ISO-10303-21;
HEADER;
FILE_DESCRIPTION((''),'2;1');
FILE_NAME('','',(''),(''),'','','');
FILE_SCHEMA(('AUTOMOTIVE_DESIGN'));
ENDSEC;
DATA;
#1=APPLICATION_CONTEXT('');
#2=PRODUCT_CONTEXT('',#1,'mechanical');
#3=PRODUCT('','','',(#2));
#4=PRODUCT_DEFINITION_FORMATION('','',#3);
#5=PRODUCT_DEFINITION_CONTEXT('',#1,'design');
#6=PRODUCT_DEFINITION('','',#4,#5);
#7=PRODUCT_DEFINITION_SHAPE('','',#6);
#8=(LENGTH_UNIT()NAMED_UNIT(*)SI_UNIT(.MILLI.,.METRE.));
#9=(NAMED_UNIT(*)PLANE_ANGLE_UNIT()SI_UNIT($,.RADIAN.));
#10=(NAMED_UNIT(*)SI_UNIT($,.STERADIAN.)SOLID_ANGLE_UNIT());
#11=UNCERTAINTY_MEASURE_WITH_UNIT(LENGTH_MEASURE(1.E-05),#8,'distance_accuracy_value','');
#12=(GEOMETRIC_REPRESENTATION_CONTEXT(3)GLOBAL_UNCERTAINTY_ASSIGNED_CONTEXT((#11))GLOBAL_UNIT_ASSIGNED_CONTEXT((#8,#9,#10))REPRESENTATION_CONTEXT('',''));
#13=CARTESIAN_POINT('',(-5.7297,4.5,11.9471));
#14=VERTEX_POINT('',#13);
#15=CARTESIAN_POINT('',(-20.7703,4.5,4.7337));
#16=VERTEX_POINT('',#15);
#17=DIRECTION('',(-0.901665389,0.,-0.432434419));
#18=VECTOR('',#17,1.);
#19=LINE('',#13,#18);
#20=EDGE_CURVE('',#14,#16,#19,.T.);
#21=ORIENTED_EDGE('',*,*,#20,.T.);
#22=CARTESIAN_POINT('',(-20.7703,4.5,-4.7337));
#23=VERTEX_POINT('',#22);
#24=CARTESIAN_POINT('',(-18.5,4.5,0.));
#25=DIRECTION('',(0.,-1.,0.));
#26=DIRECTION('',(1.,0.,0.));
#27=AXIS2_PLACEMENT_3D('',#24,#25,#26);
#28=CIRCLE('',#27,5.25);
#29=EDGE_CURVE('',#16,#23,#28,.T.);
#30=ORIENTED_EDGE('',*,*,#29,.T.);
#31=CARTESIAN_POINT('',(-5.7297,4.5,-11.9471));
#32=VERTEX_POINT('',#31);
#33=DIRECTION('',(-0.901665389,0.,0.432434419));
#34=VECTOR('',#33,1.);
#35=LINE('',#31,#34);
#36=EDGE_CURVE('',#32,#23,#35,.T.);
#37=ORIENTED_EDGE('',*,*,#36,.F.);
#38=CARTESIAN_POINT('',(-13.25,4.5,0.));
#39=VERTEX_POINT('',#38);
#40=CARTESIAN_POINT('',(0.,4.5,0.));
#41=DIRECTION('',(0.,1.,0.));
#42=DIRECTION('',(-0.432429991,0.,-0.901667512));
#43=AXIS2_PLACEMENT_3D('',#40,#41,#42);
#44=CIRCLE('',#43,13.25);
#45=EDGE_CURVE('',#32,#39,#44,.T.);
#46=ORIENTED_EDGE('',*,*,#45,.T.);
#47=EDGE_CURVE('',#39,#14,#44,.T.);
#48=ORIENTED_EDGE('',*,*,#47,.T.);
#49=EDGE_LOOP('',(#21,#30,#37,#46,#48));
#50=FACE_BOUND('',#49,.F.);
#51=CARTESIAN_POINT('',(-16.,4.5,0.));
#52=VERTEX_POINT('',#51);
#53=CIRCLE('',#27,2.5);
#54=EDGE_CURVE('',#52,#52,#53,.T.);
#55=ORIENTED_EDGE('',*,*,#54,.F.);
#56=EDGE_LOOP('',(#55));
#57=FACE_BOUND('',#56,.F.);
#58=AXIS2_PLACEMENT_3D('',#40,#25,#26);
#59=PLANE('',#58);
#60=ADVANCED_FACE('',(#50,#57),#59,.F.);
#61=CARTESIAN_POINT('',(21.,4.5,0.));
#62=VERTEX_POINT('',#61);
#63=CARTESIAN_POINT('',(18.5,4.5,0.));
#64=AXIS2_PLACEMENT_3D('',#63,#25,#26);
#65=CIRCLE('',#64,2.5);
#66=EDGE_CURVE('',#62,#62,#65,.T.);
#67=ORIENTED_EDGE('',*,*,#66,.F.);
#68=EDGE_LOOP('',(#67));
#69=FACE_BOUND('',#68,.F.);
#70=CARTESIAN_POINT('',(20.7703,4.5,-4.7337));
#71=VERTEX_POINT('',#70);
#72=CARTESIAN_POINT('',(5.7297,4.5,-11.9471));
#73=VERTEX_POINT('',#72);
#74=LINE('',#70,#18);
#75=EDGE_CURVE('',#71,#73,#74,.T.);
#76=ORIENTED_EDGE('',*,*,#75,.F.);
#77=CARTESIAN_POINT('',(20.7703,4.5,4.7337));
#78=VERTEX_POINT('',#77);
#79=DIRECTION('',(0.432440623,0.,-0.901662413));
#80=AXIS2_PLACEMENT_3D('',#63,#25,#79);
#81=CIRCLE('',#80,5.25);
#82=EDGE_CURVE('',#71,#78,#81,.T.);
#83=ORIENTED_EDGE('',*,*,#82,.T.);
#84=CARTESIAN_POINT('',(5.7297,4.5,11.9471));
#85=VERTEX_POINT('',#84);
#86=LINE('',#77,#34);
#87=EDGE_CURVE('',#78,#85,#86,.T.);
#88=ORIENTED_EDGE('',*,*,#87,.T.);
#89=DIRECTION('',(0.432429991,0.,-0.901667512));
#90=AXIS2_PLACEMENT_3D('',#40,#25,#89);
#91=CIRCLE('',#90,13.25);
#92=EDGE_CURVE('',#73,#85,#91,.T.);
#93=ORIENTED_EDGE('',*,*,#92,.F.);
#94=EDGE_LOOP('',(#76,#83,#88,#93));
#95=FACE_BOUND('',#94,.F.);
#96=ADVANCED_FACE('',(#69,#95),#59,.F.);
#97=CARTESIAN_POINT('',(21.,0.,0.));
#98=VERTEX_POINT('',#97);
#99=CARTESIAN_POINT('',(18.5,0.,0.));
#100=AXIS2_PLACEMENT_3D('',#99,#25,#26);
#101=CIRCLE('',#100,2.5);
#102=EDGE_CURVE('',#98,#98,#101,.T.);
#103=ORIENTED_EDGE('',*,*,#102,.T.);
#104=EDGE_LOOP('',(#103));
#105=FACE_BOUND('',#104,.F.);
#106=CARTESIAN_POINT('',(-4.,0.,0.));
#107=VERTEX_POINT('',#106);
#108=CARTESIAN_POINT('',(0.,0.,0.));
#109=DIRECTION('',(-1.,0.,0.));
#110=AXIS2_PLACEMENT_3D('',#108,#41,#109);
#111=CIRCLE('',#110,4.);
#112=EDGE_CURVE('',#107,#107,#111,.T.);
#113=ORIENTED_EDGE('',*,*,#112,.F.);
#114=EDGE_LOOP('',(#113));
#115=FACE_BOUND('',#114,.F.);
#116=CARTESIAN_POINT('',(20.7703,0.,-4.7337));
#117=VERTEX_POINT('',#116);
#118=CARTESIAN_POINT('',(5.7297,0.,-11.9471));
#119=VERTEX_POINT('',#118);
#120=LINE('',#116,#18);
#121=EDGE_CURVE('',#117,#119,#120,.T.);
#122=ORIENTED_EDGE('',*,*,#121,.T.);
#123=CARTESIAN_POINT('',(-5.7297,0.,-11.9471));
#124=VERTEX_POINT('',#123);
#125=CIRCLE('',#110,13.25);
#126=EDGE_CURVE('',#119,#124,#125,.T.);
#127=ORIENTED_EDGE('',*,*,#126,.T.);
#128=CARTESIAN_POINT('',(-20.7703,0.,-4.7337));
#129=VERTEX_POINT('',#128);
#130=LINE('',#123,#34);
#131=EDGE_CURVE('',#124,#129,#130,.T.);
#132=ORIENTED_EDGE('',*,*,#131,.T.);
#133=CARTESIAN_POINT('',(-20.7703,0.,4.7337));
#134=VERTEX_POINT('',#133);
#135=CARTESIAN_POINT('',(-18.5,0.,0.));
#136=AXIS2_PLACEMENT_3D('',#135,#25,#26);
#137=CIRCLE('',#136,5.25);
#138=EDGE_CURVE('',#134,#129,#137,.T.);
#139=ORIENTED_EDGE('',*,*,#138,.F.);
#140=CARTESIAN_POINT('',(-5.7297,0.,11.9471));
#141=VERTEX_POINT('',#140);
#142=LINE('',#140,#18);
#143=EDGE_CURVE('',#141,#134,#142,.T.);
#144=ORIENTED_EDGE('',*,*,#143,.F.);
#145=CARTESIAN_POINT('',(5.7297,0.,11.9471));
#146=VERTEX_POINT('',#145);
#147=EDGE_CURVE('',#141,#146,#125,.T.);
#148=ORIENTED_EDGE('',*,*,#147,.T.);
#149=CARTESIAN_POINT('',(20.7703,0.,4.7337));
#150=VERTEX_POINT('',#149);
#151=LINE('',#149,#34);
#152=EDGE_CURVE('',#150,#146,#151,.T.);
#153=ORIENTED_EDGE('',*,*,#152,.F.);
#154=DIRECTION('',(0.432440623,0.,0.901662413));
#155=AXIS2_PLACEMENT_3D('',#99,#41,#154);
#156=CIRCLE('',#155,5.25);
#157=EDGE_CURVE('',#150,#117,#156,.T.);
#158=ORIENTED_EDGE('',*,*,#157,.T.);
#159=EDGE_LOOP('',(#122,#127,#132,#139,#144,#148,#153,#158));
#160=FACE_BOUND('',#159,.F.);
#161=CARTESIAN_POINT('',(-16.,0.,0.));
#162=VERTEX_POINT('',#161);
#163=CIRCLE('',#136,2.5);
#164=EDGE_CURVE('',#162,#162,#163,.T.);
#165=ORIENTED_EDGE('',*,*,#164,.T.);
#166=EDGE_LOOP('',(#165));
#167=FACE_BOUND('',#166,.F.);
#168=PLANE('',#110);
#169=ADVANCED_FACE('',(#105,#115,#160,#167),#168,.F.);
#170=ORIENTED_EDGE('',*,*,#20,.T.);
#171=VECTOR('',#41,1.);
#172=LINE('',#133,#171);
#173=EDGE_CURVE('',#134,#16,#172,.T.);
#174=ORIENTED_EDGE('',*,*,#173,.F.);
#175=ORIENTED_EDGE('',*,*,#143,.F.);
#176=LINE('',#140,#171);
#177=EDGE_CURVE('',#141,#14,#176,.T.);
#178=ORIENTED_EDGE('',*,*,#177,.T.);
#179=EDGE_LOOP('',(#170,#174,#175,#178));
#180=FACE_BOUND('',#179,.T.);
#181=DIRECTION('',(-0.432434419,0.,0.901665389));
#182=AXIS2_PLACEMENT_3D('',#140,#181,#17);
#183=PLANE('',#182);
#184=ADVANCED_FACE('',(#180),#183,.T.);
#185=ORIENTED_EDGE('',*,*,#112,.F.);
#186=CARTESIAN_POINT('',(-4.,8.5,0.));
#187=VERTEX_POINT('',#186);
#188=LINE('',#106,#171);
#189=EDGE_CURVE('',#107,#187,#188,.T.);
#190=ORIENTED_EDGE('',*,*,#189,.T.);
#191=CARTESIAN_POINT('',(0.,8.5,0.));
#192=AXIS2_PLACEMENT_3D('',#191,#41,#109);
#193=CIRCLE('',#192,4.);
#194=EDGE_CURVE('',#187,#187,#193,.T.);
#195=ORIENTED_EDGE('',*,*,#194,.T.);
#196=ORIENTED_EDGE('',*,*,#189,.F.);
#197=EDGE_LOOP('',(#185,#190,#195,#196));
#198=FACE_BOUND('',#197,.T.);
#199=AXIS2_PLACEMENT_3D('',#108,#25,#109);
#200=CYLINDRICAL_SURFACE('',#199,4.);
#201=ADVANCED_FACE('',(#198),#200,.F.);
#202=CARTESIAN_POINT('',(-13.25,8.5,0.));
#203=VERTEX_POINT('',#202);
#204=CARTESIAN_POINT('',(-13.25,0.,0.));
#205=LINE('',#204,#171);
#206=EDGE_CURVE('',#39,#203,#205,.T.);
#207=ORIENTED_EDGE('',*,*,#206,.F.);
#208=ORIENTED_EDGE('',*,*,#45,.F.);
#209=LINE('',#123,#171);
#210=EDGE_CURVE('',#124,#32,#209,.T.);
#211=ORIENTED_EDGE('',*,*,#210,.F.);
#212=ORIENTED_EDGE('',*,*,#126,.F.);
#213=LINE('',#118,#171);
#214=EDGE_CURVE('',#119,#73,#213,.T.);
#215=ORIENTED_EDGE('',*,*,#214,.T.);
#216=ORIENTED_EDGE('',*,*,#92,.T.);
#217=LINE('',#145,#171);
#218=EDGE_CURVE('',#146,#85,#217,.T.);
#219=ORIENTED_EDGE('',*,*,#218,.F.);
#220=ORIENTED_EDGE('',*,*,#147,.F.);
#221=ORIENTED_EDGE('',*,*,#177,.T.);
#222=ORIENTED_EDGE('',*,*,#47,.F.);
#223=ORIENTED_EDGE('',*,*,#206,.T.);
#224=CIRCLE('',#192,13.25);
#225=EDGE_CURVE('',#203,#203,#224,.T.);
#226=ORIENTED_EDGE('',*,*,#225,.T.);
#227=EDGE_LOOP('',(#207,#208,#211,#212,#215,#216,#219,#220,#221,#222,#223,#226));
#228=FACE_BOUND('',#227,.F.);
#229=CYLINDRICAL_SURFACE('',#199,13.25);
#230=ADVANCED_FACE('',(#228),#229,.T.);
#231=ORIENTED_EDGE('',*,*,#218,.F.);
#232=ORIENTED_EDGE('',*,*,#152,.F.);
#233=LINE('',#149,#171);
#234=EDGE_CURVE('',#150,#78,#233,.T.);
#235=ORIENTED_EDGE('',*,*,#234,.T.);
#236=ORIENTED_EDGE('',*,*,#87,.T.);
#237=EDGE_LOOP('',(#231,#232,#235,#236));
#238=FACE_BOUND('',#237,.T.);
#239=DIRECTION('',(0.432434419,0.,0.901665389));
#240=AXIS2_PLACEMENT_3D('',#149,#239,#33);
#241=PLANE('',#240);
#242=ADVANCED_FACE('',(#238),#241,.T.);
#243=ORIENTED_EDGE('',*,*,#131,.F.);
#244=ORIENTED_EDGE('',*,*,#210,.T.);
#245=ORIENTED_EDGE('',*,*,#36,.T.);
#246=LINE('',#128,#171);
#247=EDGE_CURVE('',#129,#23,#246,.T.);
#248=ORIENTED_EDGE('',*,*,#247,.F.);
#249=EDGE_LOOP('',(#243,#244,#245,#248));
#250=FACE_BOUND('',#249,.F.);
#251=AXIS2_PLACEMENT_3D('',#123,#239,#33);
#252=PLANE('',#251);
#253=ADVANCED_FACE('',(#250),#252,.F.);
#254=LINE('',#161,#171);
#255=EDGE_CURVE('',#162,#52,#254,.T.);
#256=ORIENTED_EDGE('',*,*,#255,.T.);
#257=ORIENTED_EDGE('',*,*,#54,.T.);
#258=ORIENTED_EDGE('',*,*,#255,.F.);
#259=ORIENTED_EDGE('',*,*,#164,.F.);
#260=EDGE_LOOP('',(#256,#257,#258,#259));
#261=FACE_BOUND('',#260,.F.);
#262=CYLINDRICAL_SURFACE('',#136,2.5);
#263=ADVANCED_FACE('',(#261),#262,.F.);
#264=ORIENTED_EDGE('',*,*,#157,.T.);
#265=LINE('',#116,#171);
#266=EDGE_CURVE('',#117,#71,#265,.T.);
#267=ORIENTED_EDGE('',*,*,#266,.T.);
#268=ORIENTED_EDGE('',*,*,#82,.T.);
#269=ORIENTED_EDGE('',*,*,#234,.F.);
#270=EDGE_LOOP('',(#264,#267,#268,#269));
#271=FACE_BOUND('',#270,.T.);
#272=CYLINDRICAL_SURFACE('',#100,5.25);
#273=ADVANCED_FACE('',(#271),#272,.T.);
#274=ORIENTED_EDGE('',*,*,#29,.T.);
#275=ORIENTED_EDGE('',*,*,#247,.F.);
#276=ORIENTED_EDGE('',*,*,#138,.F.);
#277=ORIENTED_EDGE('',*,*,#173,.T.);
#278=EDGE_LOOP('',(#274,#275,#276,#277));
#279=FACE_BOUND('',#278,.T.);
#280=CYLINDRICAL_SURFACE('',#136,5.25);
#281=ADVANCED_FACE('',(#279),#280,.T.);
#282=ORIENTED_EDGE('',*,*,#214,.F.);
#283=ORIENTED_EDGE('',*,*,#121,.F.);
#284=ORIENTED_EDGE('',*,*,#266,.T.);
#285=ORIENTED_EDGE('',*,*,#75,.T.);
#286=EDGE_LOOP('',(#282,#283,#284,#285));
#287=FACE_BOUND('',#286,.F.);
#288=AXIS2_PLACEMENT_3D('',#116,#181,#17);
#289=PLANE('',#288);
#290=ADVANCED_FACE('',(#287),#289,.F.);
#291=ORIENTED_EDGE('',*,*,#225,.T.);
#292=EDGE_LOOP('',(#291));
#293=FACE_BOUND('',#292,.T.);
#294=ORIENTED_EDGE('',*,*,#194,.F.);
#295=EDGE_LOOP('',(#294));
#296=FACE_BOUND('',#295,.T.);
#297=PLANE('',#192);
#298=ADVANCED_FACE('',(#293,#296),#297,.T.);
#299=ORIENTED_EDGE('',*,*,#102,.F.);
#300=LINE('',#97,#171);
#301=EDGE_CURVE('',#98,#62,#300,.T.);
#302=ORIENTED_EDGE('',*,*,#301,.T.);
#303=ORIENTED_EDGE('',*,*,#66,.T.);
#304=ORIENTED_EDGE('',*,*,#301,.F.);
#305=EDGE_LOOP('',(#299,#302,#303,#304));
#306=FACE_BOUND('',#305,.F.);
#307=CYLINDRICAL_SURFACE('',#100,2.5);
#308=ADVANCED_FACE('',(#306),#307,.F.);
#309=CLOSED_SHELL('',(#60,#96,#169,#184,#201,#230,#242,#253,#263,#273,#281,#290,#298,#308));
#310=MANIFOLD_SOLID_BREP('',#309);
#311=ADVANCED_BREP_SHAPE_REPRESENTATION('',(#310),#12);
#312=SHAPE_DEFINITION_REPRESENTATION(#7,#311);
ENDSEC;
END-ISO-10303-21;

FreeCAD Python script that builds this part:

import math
import FreeCAD as App
import Part
import Sketcher

V = App.Vector

doc = App.newDocument("Part")
body = doc.addObject("PartDesign::Body", "Body")

sketch1 = body.newObject("Sketcher::SketchObject", "Sketch")
sketch1.AttachmentSupport = (doc.getObject("XZ_Plane"), [""])
sketch1.MapMode = "FlatFace"
sketch1.addGeometry([
    Part.Circle(V(0, 0, 0), V(0, 0, 1), 13.25),
    Part.Circle(V(0, 0, 0), V(0, 0, 1), 4),
], False)
sketch1.addConstraint([
    Sketcher.Constraint("Coincident", 0, 3, -1, 1),
    Sketcher.Constraint("Coincident", 1, 3, -1, 1),
    Sketcher.Constraint("Diameter", 1, 8.0),
    Sketcher.Constraint("Diameter", 0, 26.5),
])
pad1 = body.newObject("PartDesign::Pad", "Pad")
pad1.Profile = sketch1
pad1.Length = 8.5
pad1.Reversed = True

sketch2 = body.newObject("Sketcher::SketchObject", "Sketch001")
sketch2.AttachmentSupport = (doc.getObject("XZ_Plane"), [""])
sketch2.MapMode = "FlatFace"
sketch2.addGeometry([
    Part.ArcOfCircle(Part.Circle(V(18.5, 0, 0), V(0, 0, 1), 5.25), math.radians(-64.377452), math.radians(64.377452)),
    Part.LineSegment(V(20.7703, 4.7337, 0), V(5.7297, 11.9471, 0)),
    Part.ArcOfCircle(Part.Circle(V(0, 0, 0), V(0, 0, 1), 13.25), math.radians(-64.378127), math.radians(64.378127)),
    Part.LineSegment(V(5.7297, -11.9471, 0), V(20.7703, -4.7337, 0)),
    Part.Circle(V(18.5, 0, 0), V(0, 0, 1), 2.5),
    Part.LineSegment(V(-5.7297, 11.9471, 0), V(-20.7703, 4.7337, 0)),
    Part.ArcOfCircle(Part.Circle(V(-18.5, 0, 0), V(0, 0, 1), 5.25), math.radians(115.622548), math.radians(244.377452)),
    Part.LineSegment(V(-20.7703, -4.7337, 0), V(-5.7297, -11.9471, 0)),
    Part.ArcOfCircle(Part.Circle(V(0, 0, 0), V(0, 0, 1), 13.25), math.radians(115.621873), math.radians(244.378127)),
    Part.Circle(V(-18.5, 0, 0), V(0, 0, 1), 2.5),
], False)
sketch2.addConstraint([
    Sketcher.Constraint("Tangent", 0, 2, 1, 1),
    Sketcher.Constraint("Tangent", 1, 2, 2, 2),
    Sketcher.Constraint("Tangent", 2, 1, 3, 1),
    Sketcher.Constraint("Tangent", 3, 2, 0, 1),
    Sketcher.Constraint("Tangent", 5, 2, 6, 1),
    Sketcher.Constraint("Tangent", 6, 2, 7, 1),
    Sketcher.Constraint("Tangent", 7, 2, 8, 2),
    Sketcher.Constraint("Tangent", 8, 1, 5, 1),
    Sketcher.Constraint("Coincident", 2, 3, -1, 1),
    Sketcher.Constraint("Coincident", 8, 3, -1, 1),
    Sketcher.Constraint("Coincident", 4, 3, 0, 3),
    Sketcher.Constraint("Coincident", 9, 3, 6, 3),
    Sketcher.Constraint("Equal", 0, 6),
    Sketcher.Constraint("Equal", 2, 8),
    Sketcher.Constraint("Equal", 4, 9),
    Sketcher.Constraint("Symmetric", 0, 3, 6, 3, -1, 1),
    Sketcher.Constraint("PointOnObject", 0, 3, -1),
    Sketcher.Constraint("Diameter", 4, 5.0),
    Sketcher.Constraint("Radius", 0, 5.25),
    Sketcher.Constraint("DistanceX", 6, 3, 0, 3, 37.0),
    Sketcher.Constraint("Radius", 2, 13.25),
])
pad2 = body.newObject("PartDesign::Pad", "Pad001")
pad2.Profile = sketch2
pad2.Length = 4.5
pad2.Reversed = True

doc.recompute()
